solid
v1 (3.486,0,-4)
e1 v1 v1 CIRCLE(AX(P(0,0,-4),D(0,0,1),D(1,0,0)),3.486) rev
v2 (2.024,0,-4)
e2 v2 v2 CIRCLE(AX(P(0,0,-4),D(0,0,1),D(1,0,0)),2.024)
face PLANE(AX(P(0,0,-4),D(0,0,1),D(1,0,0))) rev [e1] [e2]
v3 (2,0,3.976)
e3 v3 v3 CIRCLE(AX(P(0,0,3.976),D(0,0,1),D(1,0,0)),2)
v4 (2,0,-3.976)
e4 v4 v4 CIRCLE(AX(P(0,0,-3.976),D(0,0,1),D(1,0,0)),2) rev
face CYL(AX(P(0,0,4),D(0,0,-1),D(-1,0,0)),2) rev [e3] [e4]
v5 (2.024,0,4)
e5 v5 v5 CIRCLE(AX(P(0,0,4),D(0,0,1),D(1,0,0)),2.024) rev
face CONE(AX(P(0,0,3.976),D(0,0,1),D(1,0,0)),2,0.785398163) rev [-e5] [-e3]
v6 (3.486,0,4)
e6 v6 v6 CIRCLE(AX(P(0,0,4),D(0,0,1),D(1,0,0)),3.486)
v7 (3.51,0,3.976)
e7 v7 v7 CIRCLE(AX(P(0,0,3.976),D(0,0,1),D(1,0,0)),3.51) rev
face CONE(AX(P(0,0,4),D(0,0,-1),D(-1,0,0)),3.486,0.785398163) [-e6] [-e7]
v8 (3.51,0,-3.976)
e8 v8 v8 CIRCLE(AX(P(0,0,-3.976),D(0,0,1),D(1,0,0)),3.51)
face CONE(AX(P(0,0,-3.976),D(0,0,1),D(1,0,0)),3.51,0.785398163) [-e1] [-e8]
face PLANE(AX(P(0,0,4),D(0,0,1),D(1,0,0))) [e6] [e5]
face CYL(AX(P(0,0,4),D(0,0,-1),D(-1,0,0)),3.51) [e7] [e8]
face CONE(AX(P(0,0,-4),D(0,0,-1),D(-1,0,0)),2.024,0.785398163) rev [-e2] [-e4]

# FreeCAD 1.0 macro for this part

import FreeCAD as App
import Part
import Sketcher
from FreeCAD import Vector
Q = App.Units.Quantity


def edges_at(feature, points):
    """Names of the edges that pass closest to the given points."""
    edges = feature.Shape.Edges
    near = lambda p: min(range(len(edges)), key=lambda i: edges[i].distToShape(Part.Vertex(*p))[0])
    return sorted({f"Edge{near(p) + 1}" for p in points})

doc = App.newDocument("Part")
body = doc.addObject("PartDesign::Body", "Body")

# Sketch on XY plane
sketch1 = body.newObject("Sketcher::SketchObject", "Sketch")
sketch1.AttachmentSupport = (doc.getObject("XY_Plane"), [""])
sketch1.MapMode = "FlatFace"
sketch1.addGeometry([
    Part.Circle(Vector(0, 0, 0), Vector(0, 0, 1), 3.51),
    Part.Circle(Vector(0, 0, 0), Vector(0, 0, 1), 2),
], False)
sketch1.addConstraint([
    Sketcher.Constraint("Coincident", 0, 3, -1, 1),
    Sketcher.Constraint("Coincident", 1, 3, -1, 1),
    Sketcher.Constraint("Diameter", 1, Q("4 mm")),
    Sketcher.Constraint("Diameter", 0, Q("7.02 mm")),
])
pad1 = body.newObject("PartDesign::Pad", "Pad")
pad1.Profile = sketch1
pad1.Type = "TwoLengths"
pad1.Length = 4
pad1.Length2 = 4
doc.recompute()

chamfer = body.newObject("PartDesign::Chamfer", "Chamfer")
chamfer.Base = (pad1, edges_at(pad1, [
    (-3.51, 0, 4),
    (-2, 0, 4),
    (-3.51, 0, -4),
    (-2, 0, -4),
]))
chamfer.Size = 0.024

doc.recompute()
